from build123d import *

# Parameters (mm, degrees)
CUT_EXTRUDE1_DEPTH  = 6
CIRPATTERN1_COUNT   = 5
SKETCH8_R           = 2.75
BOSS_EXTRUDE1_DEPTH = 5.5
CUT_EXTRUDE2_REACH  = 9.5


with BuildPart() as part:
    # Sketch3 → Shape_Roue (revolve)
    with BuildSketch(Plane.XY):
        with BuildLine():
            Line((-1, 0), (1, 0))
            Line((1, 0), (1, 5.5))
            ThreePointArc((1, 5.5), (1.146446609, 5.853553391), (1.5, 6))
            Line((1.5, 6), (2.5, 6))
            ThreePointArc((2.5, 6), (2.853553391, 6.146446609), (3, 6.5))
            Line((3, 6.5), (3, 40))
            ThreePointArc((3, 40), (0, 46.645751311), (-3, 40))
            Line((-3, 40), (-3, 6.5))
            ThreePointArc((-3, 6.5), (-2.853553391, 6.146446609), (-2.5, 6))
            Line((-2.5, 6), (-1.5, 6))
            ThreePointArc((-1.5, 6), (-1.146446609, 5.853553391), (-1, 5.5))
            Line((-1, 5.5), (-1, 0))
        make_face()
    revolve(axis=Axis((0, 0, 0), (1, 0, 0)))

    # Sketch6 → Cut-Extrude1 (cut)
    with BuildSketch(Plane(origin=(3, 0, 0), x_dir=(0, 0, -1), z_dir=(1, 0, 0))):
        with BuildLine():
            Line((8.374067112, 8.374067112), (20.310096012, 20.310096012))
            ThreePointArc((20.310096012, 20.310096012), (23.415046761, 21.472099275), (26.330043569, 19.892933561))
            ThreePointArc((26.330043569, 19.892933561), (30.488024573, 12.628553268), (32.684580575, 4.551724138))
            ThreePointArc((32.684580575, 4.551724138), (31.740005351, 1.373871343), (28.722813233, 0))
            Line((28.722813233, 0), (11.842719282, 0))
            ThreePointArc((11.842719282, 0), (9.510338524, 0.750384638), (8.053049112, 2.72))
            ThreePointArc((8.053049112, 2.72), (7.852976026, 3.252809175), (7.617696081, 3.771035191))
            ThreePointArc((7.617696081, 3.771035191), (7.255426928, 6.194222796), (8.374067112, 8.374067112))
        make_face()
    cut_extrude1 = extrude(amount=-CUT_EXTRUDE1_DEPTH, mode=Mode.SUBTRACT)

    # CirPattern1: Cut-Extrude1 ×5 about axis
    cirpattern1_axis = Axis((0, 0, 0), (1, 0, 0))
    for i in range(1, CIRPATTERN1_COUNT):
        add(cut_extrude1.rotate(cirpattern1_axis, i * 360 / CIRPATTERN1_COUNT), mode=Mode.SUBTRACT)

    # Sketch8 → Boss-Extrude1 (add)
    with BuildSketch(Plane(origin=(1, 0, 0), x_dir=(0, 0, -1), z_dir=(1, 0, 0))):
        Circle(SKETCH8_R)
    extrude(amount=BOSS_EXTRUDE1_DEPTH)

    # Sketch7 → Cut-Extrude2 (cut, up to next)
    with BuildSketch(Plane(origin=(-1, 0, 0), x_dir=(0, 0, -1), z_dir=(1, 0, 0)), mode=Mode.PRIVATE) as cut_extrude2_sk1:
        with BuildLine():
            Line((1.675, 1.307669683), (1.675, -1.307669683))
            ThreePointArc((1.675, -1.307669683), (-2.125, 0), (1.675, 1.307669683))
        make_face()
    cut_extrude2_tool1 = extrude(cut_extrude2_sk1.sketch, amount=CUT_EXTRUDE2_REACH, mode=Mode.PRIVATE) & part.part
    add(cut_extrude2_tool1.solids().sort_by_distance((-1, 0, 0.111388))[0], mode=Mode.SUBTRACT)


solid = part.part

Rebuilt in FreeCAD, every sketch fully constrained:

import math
import FreeCAD as App
import Part
import Sketcher
from FreeCAD import Vector
Q = App.Units.Quantity

doc = App.newDocument("Part")
params = doc.addObject("Spreadsheet::Sheet", "Params")
for row, (alias, value) in enumerate([
    ("sketch1_radius", "4 mm"),
    ("sketch1_radius2", "0.5 mm"),
    ("sketch1_width", "2 mm"),
    ("sketch1_width2", "1 mm"),
    ("sketch1_height", "5.5 mm"),
    ("revolution_angle", "360 deg"),
    ("sketch2_radius", "4 mm"),
    ("sketch2_radius2", "33 mm"),
    ("sketch2_radius3", "8.5 mm"),
    ("pocket1_length", "6 mm"),
    ("sketch3_diameter", "5.5 mm"),
    ("pad1_length", "5.5 mm"),
], start=1):
    params.set(f"A{row}", alias)
    params.set(f"B{row}", "=" + value)
    params.setAlias(f"B{row}", alias)

body = doc.addObject("PartDesign::Body", "Body")

sketch1 = body.newObject("Sketcher::SketchObject", "Sketch")
sketch1.AttachmentSupport = (doc.getObject("XY_Plane"), [""])
sketch1.MapMode = "FlatFace"
sketch1.addGeometry([
    Part.LineSegment(Vector(-1, 0, 0), Vector(1, 0, 0)),
    Part.LineSegment(Vector(1, 0, 0), Vector(1, 5.5, 0)),
    Part.ArcOfCircle(Part.Circle(Vector(1.5, 5.5, 0), Vector(0, 0, 1), 0.5), math.radians(90), math.radians(180)),
    Part.LineSegment(Vector(1.5, 6, 0), Vector(2.5, 6, 0)),
    Part.ArcOfCircle(Part.Circle(Vector(2.5, 6.5, 0), Vector(0, 0, 1), 0.5), math.radians(-90), math.radians(0)),
    Part.LineSegment(Vector(3, 6.5, 0), Vector(3, 40, 0)),
    Part.ArcOfCircle(Part.Circle(Vector(0, 42.65, 0), Vector(0, 0, 1), 4), math.radians(-41), math.radians(221)),
    Part.LineSegment(Vector(-3, 40, 0), Vector(-3, 6.5, 0)),
    Part.ArcOfCircle(Part.Circle(Vector(-2.5, 6.5, 0), Vector(0, 0, 1), 0.5), math.radians(180), math.radians(270)),
    Part.LineSegment(Vector(-2.5, 6, 0), Vector(-1.5, 6, 0)),
    Part.ArcOfCircle(Part.Circle(Vector(-1.5, 5.5, 0), Vector(0, 0, 1), 0.5), math.radians(0), math.radians(90)),
    Part.LineSegment(Vector(-1, 5.5, 0), Vector(-1, 0, 0)),
], False)
sketch1.addConstraint([
    Sketcher.Constraint("Coincident", 0, 2, 1, 1),
    Sketcher.Constraint("Tangent", 1, 2, 2, 2),
    Sketcher.Constraint("Tangent", 2, 1, 3, 1),
    Sketcher.Constraint("Tangent", 3, 2, 4, 1),
    Sketcher.Constraint("Tangent", 4, 2, 5, 1),
    Sketcher.Constraint("Coincident", 5, 2, 6, 1),
    Sketcher.Constraint("Coincident", 6, 2, 7, 1),
    Sketcher.Constraint("Tangent", 7, 2, 8, 1),
    Sketcher.Constraint("Tangent", 8, 2, 9, 1),
    Sketcher.Constraint("Tangent", 9, 2, 10, 2),
    Sketcher.Constraint("Tangent", 10, 1, 11, 1),
    Sketcher.Constraint("Coincident", 11, 2, 0, 1),
    Sketcher.Constraint("Horizontal", 0),
    Sketcher.Constraint("Vertical", 1),
    Sketcher.Constraint("Horizontal", 3),
    Sketcher.Constraint("Vertical", 5),
    Sketcher.Constraint("Vertical", 7),
    Sketcher.Constraint("Horizontal", 9),
    Sketcher.Constraint("Vertical", 11),
    Sketcher.Constraint("Equal", 2, 4),
    Sketcher.Constraint("Equal", 4, 8),
    Sketcher.Constraint("Equal", 8, 10),
    Sketcher.Constraint("Symmetric", 0, 2, 11, 2, -1, 1),
    Sketcher.Constraint("Symmetric", 4, 3, 8, 3, -2),
    Sketcher.Constraint("PointOnObject", 6, 3, -2),
    Sketcher.Constraint("Radius", 6, Q("4 mm")),
    Sketcher.Constraint("Radius", 2, Q("0.5 mm")),
    Sketcher.Constraint("DistanceX", 0, 1, 0, 2, Q("2 mm")),
    Sketcher.Constraint("DistanceX", 3, 1, 3, 2, Q("1 mm")),
    Sketcher.Constraint("DistanceY", 1, 1, 1, 2, Q("5.5 mm")),
    Sketcher.Constraint("DistanceY", 5, 1, 5, 2, Q("33.5 mm")),
])
sketch1.setExpression("Constraints[25]", "Params.sketch1_radius")
sketch1.setExpression("Constraints[26]", "Params.sketch1_radius2")
sketch1.setExpression("Constraints[27]", "Params.sketch1_width")
sketch1.setExpression("Constraints[28]", "Params.sketch1_width2")
sketch1.setExpression("Constraints[29]", "Params.sketch1_height")
revolution = body.newObject("PartDesign::Revolution", "Revolution")
revolution.Profile = sketch1
revolution.ReferenceAxis = (sketch1, ["H_Axis"])
revolution.setExpression("Angle", "Params.revolution_angle")

sketch2 = body.newObject("Sketcher::SketchObject", "Sketch001")
sketch2.AttachmentSupport = (doc.getObject("YZ_Plane"), [""])
sketch2.MapMode = "FlatFace"
sketch2.AttachmentOffset = App.Placement(Vector(0, 0, 3), App.Rotation())
sketch2.addGeometry([
    Part.LineSegment(Vector(20.3, -20.3, 0), Vector(8.4, -8.4, 0)),
    Part.ArcOfCircle(Part.Circle(Vector(5.5, -11.2, 0), Vector(0, 0, 1), 4), math.radians(45), math.radians(116)),
    Part.ArcOfCircle(Part.Circle(Vector(0, 0, 0), Vector(0, 0, 1), 8.5), math.radians(-71.34), math.radians(-63.66)),
    Part.ArcOfCircle(Part.Circle(Vector(4, -11.8, 0), Vector(0, 0, 1), 4), math.radians(109), math.radians(180)),
    Part.LineSegment(Vector(0, -11.8, 0), Vector(0, -28.7, 0)),
    Part.ArcOfCircle(Part.Circle(Vector(4, -28.7, 0), Vector(0, 0, 1), 4), math.radians(180), math.radians(278)),
    Part.ArcOfCircle(Part.Circle(Vector(0, 0, 0), Vector(0, 0, 1), 33), math.radians(-82), math.radians(-53)),
    Part.ArcOfCircle(Part.Circle(Vector(17.5, -23.1, 0), Vector(0, 0, 1), 4), math.radians(-53), math.radians(45)),
], False)
sketch2.addConstraint([
    Sketcher.Constraint("Tangent", 0, 2, 1, 1),
    Sketcher.Constraint("Tangent", 1, 2, 2, 2),
    Sketcher.Constraint("Tangent", 2, 1, 3, 1),
    Sketcher.Constraint("Tangent", 3, 2, 4, 1),
    Sketcher.Constraint("Tangent", 4, 2, 5, 1),
    Sketcher.Constraint("Tangent", 5, 2, 6, 1),
    Sketcher.Constraint("Tangent", 6, 2, 7, 1),
    Sketcher.Constraint("Tangent", 7, 2, 0, 1),
    Sketcher.Constraint("Vertical", 4),
    Sketcher.Constraint("Coincident", 2, 3, -1, 1),
    Sketcher.Constraint("Coincident", 6, 3, -1, 1),
    Sketcher.Constraint("Equal", 1, 3),
    Sketcher.Constraint("Equal", 3, 5),
    Sketcher.Constraint("Equal", 5, 7),
    Sketcher.Constraint("PointOnObject", 3, 2, -2),
    Sketcher.Constraint("Radius", 1, Q("4 mm")),
    Sketcher.Constraint("Radius", 6, Q("33 mm")),
    Sketcher.Constraint("Radius", 2, Q("8.5 mm")),
    Sketcher.Constraint("Angle", 0, Q("135 deg")),
    Sketcher.Constraint("DistanceX", 0, 2, 7, 3, Q("9.107602 mm")),
])
sketch2.setExpression("Constraints[15]", "Params.sketch2_radius")
sketch2.setExpression("Constraints[16]", "Params.sketch2_radius2")
sketch2.setExpression("Constraints[17]", "Params.sketch2_radius3")
pocket1 = body.newObject("PartDesign::Pocket", "Pocket")
pocket1.Profile = sketch2
pocket1.setExpression("Length", "Params.pocket1_length")
doc.recompute()

polarpattern = body.newObject("PartDesign::PolarPattern", "PolarPattern")
polarpattern.Originals = [pocket1]
polarpattern.Axis = (doc.getObject("X_Axis"), [""])
polarpattern.Angle = 360
polarpattern.Occurrences = 5
body.Tip = polarpattern

sketch3 = body.newObject("Sketcher::SketchObject", "Sketch002")
sketch3.AttachmentSupport = (doc.getObject("YZ_Plane"), [""])
sketch3.MapMode = "FlatFace"
sketch3.AttachmentOffset = App.Placement(Vector(0, 0, 1), App.Rotation())
sketch3.addGeometry(Part.Circle(Vector(0, 0, 0), Vector(0, 0, 1), 2.8), False)
sketch3.addConstraint([
    Sketcher.Constraint("Coincident", 0, 3, -1, 1),
    Sketcher.Constraint("Diameter", 0, Q("5.5 mm")),
])
sketch3.setExpression("Constraints[1]", "Params.sketch3_diameter")
pad1 = body.newObject("PartDesign::Pad", "Pad")
pad1.Profile = sketch3
pad1.setExpression("Length", "Params.pad1_length")

sketch4 = body.newObject("Sketcher::SketchObject", "Sketch003")
sketch4.AttachmentSupport = (doc.getObject("YZ_Plane"), [""])
sketch4.MapMode = "FlatFace"
sketch4.AttachmentOffset = App.Placement(Vector(0, 0, -1), App.Rotation())
sketch4.addGeometry([
    Part.LineSegment(Vector(-1.3, -1.7, 0), Vector(1.3, -1.7, 0)),
    Part.ArcOfCircle(Part.Circle(Vector(0, 0, 0), Vector(0, 0, 1), 2.1), math.radians(-52), math.radians(232)),
], False)
sketch4.addConstraint([
    Sketcher.Constraint("Coincident", 0, 1, 1, 2),
    Sketcher.Constraint("Coincident", 1, 1, 0, 2),
    Sketcher.Constraint("Horizontal", 0),
    Sketcher.Constraint("Coincident", 1, 3, -1, 1),
    Sketcher.Constraint("Radius", 1, Q("2.125 mm")),
    Sketcher.Constraint("DistanceY", 0, 1, -1, 1, Q("1.675 mm")),
])
pocket2 = body.newObject("PartDesign::Pocket", "Pocket001")
pocket2.Profile = sketch4
pocket2.Type = "UpToFirst"
pocket2.Reversed = True

doc.recompute()
